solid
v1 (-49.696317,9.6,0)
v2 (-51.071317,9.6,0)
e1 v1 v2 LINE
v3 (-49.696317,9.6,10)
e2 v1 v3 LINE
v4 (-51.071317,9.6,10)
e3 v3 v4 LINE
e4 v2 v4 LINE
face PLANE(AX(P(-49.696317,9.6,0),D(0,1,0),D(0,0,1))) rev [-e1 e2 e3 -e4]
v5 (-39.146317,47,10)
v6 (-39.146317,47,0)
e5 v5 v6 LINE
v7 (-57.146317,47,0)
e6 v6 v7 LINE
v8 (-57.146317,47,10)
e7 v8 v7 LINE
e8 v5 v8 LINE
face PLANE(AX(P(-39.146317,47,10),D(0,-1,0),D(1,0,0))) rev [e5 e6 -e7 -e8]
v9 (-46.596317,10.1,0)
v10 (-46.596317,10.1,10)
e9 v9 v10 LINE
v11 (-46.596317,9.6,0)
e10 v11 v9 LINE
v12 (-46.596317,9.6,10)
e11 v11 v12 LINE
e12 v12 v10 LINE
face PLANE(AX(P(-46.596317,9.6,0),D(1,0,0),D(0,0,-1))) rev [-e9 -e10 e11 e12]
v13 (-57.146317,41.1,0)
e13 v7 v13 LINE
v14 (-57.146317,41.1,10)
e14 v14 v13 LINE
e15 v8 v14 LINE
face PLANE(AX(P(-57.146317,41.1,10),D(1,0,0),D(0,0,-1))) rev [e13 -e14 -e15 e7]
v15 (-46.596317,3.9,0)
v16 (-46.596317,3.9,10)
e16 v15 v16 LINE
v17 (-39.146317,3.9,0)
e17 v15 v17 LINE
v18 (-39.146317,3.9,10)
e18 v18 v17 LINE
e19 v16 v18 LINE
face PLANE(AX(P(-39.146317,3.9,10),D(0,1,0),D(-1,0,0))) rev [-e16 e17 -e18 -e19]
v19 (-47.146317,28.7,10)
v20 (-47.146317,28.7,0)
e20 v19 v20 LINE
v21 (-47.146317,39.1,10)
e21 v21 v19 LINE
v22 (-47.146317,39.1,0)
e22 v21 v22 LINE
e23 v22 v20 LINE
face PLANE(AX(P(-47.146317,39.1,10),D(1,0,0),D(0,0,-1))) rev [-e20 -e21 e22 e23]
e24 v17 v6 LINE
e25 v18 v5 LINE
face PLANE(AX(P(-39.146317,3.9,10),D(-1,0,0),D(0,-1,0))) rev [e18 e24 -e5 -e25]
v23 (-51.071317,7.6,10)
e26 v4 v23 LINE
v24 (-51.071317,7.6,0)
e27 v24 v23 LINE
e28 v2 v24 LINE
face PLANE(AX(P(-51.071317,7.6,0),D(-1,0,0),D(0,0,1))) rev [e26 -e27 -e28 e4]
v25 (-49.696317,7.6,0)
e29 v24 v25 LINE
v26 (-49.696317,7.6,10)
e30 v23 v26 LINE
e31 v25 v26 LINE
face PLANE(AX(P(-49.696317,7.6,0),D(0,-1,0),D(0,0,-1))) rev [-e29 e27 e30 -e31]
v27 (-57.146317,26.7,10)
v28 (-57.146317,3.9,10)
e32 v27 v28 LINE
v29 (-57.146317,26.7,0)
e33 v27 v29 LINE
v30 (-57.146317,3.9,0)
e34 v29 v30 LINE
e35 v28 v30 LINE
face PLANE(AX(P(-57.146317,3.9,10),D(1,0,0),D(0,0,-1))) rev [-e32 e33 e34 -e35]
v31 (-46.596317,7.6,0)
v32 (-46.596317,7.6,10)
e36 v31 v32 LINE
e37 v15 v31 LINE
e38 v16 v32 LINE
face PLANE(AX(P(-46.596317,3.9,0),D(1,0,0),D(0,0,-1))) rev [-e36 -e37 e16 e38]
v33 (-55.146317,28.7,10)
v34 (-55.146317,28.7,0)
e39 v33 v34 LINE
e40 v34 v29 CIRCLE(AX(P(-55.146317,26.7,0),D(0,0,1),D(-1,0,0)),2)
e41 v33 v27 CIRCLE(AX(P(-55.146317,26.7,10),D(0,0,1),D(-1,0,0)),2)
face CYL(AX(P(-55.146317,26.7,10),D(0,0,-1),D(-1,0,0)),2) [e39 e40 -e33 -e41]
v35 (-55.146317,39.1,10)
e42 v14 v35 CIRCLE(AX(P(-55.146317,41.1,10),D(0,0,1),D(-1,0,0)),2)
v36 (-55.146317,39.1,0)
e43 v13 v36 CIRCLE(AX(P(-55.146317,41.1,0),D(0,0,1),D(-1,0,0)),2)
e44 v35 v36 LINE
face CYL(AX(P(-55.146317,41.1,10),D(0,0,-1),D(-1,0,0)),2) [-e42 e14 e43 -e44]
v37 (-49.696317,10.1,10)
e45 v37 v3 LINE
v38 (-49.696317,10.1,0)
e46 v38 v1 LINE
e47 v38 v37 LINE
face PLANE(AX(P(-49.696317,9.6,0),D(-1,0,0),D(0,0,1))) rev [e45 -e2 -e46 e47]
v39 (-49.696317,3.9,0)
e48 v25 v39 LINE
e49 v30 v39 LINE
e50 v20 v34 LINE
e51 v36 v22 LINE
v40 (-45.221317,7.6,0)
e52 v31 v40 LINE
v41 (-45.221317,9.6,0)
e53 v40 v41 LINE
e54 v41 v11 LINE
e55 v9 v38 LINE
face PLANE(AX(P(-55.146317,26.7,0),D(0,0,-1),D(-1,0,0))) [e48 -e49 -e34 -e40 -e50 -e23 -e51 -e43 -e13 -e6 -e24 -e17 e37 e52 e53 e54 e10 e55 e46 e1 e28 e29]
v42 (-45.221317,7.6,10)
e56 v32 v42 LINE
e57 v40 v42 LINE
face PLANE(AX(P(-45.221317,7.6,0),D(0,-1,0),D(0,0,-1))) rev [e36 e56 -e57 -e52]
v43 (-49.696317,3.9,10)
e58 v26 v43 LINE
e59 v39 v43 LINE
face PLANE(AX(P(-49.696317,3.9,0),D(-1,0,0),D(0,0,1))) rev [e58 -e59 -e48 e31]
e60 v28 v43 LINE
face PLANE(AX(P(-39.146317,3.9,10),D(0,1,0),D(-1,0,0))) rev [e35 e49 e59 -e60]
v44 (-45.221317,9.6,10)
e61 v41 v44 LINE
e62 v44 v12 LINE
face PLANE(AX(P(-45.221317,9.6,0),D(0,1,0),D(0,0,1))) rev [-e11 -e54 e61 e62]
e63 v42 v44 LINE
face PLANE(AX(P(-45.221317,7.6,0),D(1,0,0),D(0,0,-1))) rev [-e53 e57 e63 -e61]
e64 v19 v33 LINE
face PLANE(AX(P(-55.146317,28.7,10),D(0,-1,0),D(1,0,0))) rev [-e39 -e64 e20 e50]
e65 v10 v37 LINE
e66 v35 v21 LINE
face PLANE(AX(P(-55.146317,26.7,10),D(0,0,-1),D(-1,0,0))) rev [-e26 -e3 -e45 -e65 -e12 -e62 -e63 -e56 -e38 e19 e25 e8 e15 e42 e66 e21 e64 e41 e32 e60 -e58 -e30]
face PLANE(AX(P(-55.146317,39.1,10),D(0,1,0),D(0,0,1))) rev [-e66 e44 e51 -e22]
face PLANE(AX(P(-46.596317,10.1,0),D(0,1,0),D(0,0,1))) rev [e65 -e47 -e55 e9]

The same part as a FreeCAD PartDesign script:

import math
import FreeCAD as App
import Part
import Sketcher
Q = App.Units.Quantity


def add_polygon(sketch, points):
    """Adds a closed chain of lines whose ends are joined by coincident constraints."""
    first, n = sketch.GeometryCount, len(points)
    for a, b in zip(points, points[1:] + points[:1]):
        sketch.addGeometry(Part.LineSegment(App.Vector(*a, 0), App.Vector(*b, 0)), False)
    for i in range(n):
        sketch.addConstraint(Sketcher.Constraint("Coincident", first + i, 2, first + (i + 1) % n, 1))

doc = App.newDocument("Part")
body = doc.addObject("PartDesign::Body", "Body")

sketch1 = body.newObject("Sketcher::SketchObject", "Sketch")
sketch1.AttachmentSupport = (doc.getObject("XY_Plane"), [""])
sketch1.MapMode = "FlatFace"
sketch1.addGeometry(Part.LineSegment(App.Vector(-57.1, 3.9, 0), App.Vector(-39.1, 3.9, 0)), False)
sketch1.addGeometry(Part.LineSegment(App.Vector(-39.1, 3.9, 0), App.Vector(-39.1, 47, 0)), False)
sketch1.addGeometry(Part.LineSegment(App.Vector(-39.1, 47, 0), App.Vector(-57.1, 47, 0)), False)
sketch1.addGeometry(Part.LineSegment(App.Vector(-57.1, 47, 0), App.Vector(-57.1, 41.1, 0)), False)
sketch1.addGeometry(Part.ArcOfCircle(Part.Circle(App.Vector(-55.1, 41.1, 0), App.Vector(0, 0, 1), 2), math.radians(-180), math.radians(-90)), False)
sketch1.addGeometry(Part.LineSegment(App.Vector(-55.1, 39.1, 0), App.Vector(-47.1, 39.1, 0)), False)
sketch1.addGeometry(Part.LineSegment(App.Vector(-47.1, 39.1, 0), App.Vector(-47.1, 28.7, 0)), False)
sketch1.addGeometry(Part.LineSegment(App.Vector(-47.1, 28.7, 0), App.Vector(-55.1, 28.7, 0)), False)
sketch1.addGeometry(Part.ArcOfCircle(Part.Circle(App.Vector(-55.1, 26.7, 0), App.Vector(0, 0, 1), 2), math.radians(90), math.radians(180)), False)
sketch1.addGeometry(Part.LineSegment(App.Vector(-57.1, 26.7, 0), App.Vector(-57.1, 3.9, 0)), False)
sketch1.addConstraint(Sketcher.Constraint("Coincident", 0, 2, 1, 1))
sketch1.addConstraint(Sketcher.Constraint("Coincident", 1, 2, 2, 1))
sketch1.addConstraint(Sketcher.Constraint("Coincident", 2, 2, 3, 1))
sketch1.addConstraint(Sketcher.Constraint("Tangent", 3, 2, 4, 1))
sketch1.addConstraint(Sketcher.Constraint("Tangent", 4, 2, 5, 1))
sketch1.addConstraint(Sketcher.Constraint("Coincident", 5, 2, 6, 1))
sketch1.addConstraint(Sketcher.Constraint("Coincident", 6, 2, 7, 1))
sketch1.addConstraint(Sketcher.Constraint("Tangent", 7, 2, 8, 1))
sketch1.addConstraint(Sketcher.Constraint("Tangent", 8, 2, 9, 1))
sketch1.addConstraint(Sketcher.Constraint("Coincident", 9, 2, 0, 1))
sketch1.addConstraint(Sketcher.Constraint("Horizontal", 0))
sketch1.addConstraint(Sketcher.Constraint("Vertical", 1))
sketch1.addConstraint(Sketcher.Constraint("Horizontal", 2))
sketch1.addConstraint(Sketcher.Constraint("Vertical", 3))
sketch1.addConstraint(Sketcher.Constraint("Horizontal", 5))
sketch1.addConstraint(Sketcher.Constraint("Vertical", 6))
sketch1.addConstraint(Sketcher.Constraint("Horizontal", 7))
sketch1.addConstraint(Sketcher.Constraint("Vertical", 9))
sketch1.addConstraint(Sketcher.Constraint("Equal", 4, 8))
sketch1.addConstraint(Sketcher.Constraint("Vertical", 4, 3, 8, 3))
sketch1.addConstraint(Sketcher.Constraint("Radius", 4, Q("2 mm")))
sketch1.addConstraint(Sketcher.Constraint("DistanceX", 0, 1, 0, 2, Q("18 mm")))
sketch1.addConstraint(Sketcher.Constraint("DistanceX", 5, 1, 5, 2, Q("8 mm")))
sketch1.addConstraint(Sketcher.Constraint("DistanceY", 1, 1, 1, 2, Q("43.1 mm")))
sketch1.addConstraint(Sketcher.Constraint("DistanceY", 3, 2, 3, 1, Q("5.9 mm")))
sketch1.addConstraint(Sketcher.Constraint("DistanceY", 6, 2, 6, 1, Q("10.4 mm")))
sketch1.addConstraint(Sketcher.Constraint("DistanceY", -1, 1, 1, 2, Q("47 mm")))
sketch1.addConstraint(Sketcher.Constraint("DistanceX", 4, 3, -1, 1, Q("55.146317 mm")))
pad1 = body.newObject("PartDesign::Pad", "Pad")
pad1.Profile = sketch1
pad1.Length = 10

sketch2 = body.newObject("Sketcher::SketchObject", "Sketch001")
sketch2.AttachmentSupport = (doc.getObject("XY_Plane"), [""])
sketch2.MapMode = "FlatFace"
sketch2.AttachmentOffset = App.Placement(App.Vector(0, 0, 10), App.Rotation())
add_polygon(sketch2, [(-46.6, 3.9), (-46.6, 7.6), (-45.2, 7.6), (-45.2, 9.6), (-46.6, 9.6), (-46.6, 10.1), (-49.7, 10.1), (-49.7, 9.6), (-51.1, 9.6), (-51.1, 7.6), (-49.7, 7.6), (-49.7, 3.9)])
sketch2.addConstraint(Sketcher.Constraint("Vertical", 0))
sketch2.addConstraint(Sketcher.Constraint("Horizontal", 1))
sketch2.addConstraint(Sketcher.Constraint("Vertical", 2))
sketch2.addConstraint(Sketcher.Constraint("Horizontal", 3))
sketch2.addConstraint(Sketcher.Constraint("Vertical", 4))
sketch2.addConstraint(Sketcher.Constraint("Horizontal", 5))
sketch2.addConstraint(Sketcher.Constraint("Vertical", 6))
sketch2.addConstraint(Sketcher.Constraint("Horizontal", 7))
sketch2.addConstraint(Sketcher.Constraint("Vertical", 8))
sketch2.addConstraint(Sketcher.Constraint("Horizontal", 9))
sketch2.addConstraint(Sketcher.Constraint("Vertical", 10))
sketch2.addConstraint(Sketcher.Constraint("Horizontal", 11))
sketch2.addConstraint(Sketcher.Constraint("Horizontal", 3, 2, 6, 2))
sketch2.addConstraint(Sketcher.Constraint("Horizontal", 1, 2, 8, 2))
sketch2.addConstraint(Sketcher.Constraint("Vertical", 0, 2, 3, 2))
sketch2.addConstraint(Sketcher.Constraint("Vertical", 6, 2, 9, 2))
sketch2.addConstraint(Sketcher.Constraint("Equal", 3, 7))
sketch2.addConstraint(Sketcher.Constraint("DistanceY", 2, 1, 2, 2, Q("2 mm")))
sketch2.addConstraint(Sketcher.Constraint("DistanceX", 5, 2, 5, 1, Q("3.1 mm")))
sketch2.addConstraint(Sketcher.Constraint("DistanceY", 0, 1, 0, 2, Q("3.7 mm")))
sketch2.addConstraint(Sketcher.Constraint("DistanceY", 4, 1, 4, 2, Q("0.5 mm")))
sketch2.addConstraint(Sketcher.Constraint("DistanceY", -1, 1, 0, 2, Q("7.6 mm")))
sketch2.addConstraint(Sketcher.Constraint("DistanceX", 1, 1, 1, 2, Q("1.375 mm")))
sketch2.addConstraint(Sketcher.Constraint("DistanceX", 0, 2, -1, 1, Q("46.596317 mm")))
pocket1 = body.newObject("PartDesign::Pocket", "Pocket")
pocket1.Profile = sketch2
pocket1.Length = 10

doc.recompute()
